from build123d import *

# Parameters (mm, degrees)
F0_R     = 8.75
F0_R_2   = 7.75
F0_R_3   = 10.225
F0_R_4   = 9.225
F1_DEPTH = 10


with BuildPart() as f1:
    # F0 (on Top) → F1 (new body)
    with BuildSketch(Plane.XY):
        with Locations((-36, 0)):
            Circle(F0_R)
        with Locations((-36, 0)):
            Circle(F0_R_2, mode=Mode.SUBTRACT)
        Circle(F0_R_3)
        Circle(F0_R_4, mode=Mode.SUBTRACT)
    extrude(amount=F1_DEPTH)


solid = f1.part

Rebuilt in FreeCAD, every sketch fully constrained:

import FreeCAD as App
import Part
import Sketcher

V = App.Vector
Q = App.Units.Quantity

doc = App.newDocument("Part")
params = doc.addObject("Spreadsheet::Sheet", "Params")
for row, (alias, value) in enumerate([
    ("sketch1_diameter", "17.5 mm"),
    ("sketch1_diameter2", "15.5 mm"),
    ("sketch1_diameter3", "20.45 mm"),
    ("sketch1_diameter4", "18.45 mm"),
    ("pad1_length", "10 mm"),
], start=1):
    params.set(f"A{row}", alias)
    params.set(f"B{row}", "=" + value)
    params.setAlias(f"B{row}", alias)

body = doc.addObject("PartDesign::Body", "Body")
body.AllowCompound = True

# Sketch on XY plane
sketch1 = doc.addObject("Sketcher::SketchObject", "Sketch")
body.addObject(sketch1)
sketch1.AttachmentSupport = (doc.XY_Plane, [""])
sketch1.MapMode = "FlatFace"
sketch1.addGeometry([
    Part.Circle(V(-36, 0, 0), V(0, 0, 1), 8.75),
    Part.Circle(V(-36, 0, 0), V(0, 0, 1), 7.75),
    Part.Circle(V(0, 0, 0), V(0, 0, 1), 10.225),
    Part.Circle(V(0, 0, 0), V(0, 0, 1), 9.225),
], False)
sketch1.addConstraint([
    Sketcher.Constraint("Coincident", 2, 3, -1, 1),
    Sketcher.Constraint("Coincident", 3, 3, -1, 1),
    Sketcher.Constraint("Coincident", 1, 3, 0, 3),
    Sketcher.Constraint("PointOnObject", 0, 3, -1),
    Sketcher.Constraint("Diameter", 0, Q("17.5 mm")),
    Sketcher.Constraint("Diameter", 1, Q("15.5 mm")),
    Sketcher.Constraint("Diameter", 2, Q("20.45 mm")),
    Sketcher.Constraint("Diameter", 3, Q("18.45 mm")),
    Sketcher.Constraint("DistanceX", 0, 3, -1, 1, Q("36 mm")),
])
sketch1.setExpression("Constraints[4]", "Params.sketch1_diameter")
sketch1.setExpression("Constraints[5]", "Params.sketch1_diameter2")
sketch1.setExpression("Constraints[6]", "Params.sketch1_diameter3")
sketch1.setExpression("Constraints[7]", "Params.sketch1_diameter4")
pad1 = doc.addObject("PartDesign::Pad", "Pad")
body.addObject(pad1)
pad1.Profile = sketch1
pad1.setExpression("Length", "Params.pad1_length")

doc.recompute()
